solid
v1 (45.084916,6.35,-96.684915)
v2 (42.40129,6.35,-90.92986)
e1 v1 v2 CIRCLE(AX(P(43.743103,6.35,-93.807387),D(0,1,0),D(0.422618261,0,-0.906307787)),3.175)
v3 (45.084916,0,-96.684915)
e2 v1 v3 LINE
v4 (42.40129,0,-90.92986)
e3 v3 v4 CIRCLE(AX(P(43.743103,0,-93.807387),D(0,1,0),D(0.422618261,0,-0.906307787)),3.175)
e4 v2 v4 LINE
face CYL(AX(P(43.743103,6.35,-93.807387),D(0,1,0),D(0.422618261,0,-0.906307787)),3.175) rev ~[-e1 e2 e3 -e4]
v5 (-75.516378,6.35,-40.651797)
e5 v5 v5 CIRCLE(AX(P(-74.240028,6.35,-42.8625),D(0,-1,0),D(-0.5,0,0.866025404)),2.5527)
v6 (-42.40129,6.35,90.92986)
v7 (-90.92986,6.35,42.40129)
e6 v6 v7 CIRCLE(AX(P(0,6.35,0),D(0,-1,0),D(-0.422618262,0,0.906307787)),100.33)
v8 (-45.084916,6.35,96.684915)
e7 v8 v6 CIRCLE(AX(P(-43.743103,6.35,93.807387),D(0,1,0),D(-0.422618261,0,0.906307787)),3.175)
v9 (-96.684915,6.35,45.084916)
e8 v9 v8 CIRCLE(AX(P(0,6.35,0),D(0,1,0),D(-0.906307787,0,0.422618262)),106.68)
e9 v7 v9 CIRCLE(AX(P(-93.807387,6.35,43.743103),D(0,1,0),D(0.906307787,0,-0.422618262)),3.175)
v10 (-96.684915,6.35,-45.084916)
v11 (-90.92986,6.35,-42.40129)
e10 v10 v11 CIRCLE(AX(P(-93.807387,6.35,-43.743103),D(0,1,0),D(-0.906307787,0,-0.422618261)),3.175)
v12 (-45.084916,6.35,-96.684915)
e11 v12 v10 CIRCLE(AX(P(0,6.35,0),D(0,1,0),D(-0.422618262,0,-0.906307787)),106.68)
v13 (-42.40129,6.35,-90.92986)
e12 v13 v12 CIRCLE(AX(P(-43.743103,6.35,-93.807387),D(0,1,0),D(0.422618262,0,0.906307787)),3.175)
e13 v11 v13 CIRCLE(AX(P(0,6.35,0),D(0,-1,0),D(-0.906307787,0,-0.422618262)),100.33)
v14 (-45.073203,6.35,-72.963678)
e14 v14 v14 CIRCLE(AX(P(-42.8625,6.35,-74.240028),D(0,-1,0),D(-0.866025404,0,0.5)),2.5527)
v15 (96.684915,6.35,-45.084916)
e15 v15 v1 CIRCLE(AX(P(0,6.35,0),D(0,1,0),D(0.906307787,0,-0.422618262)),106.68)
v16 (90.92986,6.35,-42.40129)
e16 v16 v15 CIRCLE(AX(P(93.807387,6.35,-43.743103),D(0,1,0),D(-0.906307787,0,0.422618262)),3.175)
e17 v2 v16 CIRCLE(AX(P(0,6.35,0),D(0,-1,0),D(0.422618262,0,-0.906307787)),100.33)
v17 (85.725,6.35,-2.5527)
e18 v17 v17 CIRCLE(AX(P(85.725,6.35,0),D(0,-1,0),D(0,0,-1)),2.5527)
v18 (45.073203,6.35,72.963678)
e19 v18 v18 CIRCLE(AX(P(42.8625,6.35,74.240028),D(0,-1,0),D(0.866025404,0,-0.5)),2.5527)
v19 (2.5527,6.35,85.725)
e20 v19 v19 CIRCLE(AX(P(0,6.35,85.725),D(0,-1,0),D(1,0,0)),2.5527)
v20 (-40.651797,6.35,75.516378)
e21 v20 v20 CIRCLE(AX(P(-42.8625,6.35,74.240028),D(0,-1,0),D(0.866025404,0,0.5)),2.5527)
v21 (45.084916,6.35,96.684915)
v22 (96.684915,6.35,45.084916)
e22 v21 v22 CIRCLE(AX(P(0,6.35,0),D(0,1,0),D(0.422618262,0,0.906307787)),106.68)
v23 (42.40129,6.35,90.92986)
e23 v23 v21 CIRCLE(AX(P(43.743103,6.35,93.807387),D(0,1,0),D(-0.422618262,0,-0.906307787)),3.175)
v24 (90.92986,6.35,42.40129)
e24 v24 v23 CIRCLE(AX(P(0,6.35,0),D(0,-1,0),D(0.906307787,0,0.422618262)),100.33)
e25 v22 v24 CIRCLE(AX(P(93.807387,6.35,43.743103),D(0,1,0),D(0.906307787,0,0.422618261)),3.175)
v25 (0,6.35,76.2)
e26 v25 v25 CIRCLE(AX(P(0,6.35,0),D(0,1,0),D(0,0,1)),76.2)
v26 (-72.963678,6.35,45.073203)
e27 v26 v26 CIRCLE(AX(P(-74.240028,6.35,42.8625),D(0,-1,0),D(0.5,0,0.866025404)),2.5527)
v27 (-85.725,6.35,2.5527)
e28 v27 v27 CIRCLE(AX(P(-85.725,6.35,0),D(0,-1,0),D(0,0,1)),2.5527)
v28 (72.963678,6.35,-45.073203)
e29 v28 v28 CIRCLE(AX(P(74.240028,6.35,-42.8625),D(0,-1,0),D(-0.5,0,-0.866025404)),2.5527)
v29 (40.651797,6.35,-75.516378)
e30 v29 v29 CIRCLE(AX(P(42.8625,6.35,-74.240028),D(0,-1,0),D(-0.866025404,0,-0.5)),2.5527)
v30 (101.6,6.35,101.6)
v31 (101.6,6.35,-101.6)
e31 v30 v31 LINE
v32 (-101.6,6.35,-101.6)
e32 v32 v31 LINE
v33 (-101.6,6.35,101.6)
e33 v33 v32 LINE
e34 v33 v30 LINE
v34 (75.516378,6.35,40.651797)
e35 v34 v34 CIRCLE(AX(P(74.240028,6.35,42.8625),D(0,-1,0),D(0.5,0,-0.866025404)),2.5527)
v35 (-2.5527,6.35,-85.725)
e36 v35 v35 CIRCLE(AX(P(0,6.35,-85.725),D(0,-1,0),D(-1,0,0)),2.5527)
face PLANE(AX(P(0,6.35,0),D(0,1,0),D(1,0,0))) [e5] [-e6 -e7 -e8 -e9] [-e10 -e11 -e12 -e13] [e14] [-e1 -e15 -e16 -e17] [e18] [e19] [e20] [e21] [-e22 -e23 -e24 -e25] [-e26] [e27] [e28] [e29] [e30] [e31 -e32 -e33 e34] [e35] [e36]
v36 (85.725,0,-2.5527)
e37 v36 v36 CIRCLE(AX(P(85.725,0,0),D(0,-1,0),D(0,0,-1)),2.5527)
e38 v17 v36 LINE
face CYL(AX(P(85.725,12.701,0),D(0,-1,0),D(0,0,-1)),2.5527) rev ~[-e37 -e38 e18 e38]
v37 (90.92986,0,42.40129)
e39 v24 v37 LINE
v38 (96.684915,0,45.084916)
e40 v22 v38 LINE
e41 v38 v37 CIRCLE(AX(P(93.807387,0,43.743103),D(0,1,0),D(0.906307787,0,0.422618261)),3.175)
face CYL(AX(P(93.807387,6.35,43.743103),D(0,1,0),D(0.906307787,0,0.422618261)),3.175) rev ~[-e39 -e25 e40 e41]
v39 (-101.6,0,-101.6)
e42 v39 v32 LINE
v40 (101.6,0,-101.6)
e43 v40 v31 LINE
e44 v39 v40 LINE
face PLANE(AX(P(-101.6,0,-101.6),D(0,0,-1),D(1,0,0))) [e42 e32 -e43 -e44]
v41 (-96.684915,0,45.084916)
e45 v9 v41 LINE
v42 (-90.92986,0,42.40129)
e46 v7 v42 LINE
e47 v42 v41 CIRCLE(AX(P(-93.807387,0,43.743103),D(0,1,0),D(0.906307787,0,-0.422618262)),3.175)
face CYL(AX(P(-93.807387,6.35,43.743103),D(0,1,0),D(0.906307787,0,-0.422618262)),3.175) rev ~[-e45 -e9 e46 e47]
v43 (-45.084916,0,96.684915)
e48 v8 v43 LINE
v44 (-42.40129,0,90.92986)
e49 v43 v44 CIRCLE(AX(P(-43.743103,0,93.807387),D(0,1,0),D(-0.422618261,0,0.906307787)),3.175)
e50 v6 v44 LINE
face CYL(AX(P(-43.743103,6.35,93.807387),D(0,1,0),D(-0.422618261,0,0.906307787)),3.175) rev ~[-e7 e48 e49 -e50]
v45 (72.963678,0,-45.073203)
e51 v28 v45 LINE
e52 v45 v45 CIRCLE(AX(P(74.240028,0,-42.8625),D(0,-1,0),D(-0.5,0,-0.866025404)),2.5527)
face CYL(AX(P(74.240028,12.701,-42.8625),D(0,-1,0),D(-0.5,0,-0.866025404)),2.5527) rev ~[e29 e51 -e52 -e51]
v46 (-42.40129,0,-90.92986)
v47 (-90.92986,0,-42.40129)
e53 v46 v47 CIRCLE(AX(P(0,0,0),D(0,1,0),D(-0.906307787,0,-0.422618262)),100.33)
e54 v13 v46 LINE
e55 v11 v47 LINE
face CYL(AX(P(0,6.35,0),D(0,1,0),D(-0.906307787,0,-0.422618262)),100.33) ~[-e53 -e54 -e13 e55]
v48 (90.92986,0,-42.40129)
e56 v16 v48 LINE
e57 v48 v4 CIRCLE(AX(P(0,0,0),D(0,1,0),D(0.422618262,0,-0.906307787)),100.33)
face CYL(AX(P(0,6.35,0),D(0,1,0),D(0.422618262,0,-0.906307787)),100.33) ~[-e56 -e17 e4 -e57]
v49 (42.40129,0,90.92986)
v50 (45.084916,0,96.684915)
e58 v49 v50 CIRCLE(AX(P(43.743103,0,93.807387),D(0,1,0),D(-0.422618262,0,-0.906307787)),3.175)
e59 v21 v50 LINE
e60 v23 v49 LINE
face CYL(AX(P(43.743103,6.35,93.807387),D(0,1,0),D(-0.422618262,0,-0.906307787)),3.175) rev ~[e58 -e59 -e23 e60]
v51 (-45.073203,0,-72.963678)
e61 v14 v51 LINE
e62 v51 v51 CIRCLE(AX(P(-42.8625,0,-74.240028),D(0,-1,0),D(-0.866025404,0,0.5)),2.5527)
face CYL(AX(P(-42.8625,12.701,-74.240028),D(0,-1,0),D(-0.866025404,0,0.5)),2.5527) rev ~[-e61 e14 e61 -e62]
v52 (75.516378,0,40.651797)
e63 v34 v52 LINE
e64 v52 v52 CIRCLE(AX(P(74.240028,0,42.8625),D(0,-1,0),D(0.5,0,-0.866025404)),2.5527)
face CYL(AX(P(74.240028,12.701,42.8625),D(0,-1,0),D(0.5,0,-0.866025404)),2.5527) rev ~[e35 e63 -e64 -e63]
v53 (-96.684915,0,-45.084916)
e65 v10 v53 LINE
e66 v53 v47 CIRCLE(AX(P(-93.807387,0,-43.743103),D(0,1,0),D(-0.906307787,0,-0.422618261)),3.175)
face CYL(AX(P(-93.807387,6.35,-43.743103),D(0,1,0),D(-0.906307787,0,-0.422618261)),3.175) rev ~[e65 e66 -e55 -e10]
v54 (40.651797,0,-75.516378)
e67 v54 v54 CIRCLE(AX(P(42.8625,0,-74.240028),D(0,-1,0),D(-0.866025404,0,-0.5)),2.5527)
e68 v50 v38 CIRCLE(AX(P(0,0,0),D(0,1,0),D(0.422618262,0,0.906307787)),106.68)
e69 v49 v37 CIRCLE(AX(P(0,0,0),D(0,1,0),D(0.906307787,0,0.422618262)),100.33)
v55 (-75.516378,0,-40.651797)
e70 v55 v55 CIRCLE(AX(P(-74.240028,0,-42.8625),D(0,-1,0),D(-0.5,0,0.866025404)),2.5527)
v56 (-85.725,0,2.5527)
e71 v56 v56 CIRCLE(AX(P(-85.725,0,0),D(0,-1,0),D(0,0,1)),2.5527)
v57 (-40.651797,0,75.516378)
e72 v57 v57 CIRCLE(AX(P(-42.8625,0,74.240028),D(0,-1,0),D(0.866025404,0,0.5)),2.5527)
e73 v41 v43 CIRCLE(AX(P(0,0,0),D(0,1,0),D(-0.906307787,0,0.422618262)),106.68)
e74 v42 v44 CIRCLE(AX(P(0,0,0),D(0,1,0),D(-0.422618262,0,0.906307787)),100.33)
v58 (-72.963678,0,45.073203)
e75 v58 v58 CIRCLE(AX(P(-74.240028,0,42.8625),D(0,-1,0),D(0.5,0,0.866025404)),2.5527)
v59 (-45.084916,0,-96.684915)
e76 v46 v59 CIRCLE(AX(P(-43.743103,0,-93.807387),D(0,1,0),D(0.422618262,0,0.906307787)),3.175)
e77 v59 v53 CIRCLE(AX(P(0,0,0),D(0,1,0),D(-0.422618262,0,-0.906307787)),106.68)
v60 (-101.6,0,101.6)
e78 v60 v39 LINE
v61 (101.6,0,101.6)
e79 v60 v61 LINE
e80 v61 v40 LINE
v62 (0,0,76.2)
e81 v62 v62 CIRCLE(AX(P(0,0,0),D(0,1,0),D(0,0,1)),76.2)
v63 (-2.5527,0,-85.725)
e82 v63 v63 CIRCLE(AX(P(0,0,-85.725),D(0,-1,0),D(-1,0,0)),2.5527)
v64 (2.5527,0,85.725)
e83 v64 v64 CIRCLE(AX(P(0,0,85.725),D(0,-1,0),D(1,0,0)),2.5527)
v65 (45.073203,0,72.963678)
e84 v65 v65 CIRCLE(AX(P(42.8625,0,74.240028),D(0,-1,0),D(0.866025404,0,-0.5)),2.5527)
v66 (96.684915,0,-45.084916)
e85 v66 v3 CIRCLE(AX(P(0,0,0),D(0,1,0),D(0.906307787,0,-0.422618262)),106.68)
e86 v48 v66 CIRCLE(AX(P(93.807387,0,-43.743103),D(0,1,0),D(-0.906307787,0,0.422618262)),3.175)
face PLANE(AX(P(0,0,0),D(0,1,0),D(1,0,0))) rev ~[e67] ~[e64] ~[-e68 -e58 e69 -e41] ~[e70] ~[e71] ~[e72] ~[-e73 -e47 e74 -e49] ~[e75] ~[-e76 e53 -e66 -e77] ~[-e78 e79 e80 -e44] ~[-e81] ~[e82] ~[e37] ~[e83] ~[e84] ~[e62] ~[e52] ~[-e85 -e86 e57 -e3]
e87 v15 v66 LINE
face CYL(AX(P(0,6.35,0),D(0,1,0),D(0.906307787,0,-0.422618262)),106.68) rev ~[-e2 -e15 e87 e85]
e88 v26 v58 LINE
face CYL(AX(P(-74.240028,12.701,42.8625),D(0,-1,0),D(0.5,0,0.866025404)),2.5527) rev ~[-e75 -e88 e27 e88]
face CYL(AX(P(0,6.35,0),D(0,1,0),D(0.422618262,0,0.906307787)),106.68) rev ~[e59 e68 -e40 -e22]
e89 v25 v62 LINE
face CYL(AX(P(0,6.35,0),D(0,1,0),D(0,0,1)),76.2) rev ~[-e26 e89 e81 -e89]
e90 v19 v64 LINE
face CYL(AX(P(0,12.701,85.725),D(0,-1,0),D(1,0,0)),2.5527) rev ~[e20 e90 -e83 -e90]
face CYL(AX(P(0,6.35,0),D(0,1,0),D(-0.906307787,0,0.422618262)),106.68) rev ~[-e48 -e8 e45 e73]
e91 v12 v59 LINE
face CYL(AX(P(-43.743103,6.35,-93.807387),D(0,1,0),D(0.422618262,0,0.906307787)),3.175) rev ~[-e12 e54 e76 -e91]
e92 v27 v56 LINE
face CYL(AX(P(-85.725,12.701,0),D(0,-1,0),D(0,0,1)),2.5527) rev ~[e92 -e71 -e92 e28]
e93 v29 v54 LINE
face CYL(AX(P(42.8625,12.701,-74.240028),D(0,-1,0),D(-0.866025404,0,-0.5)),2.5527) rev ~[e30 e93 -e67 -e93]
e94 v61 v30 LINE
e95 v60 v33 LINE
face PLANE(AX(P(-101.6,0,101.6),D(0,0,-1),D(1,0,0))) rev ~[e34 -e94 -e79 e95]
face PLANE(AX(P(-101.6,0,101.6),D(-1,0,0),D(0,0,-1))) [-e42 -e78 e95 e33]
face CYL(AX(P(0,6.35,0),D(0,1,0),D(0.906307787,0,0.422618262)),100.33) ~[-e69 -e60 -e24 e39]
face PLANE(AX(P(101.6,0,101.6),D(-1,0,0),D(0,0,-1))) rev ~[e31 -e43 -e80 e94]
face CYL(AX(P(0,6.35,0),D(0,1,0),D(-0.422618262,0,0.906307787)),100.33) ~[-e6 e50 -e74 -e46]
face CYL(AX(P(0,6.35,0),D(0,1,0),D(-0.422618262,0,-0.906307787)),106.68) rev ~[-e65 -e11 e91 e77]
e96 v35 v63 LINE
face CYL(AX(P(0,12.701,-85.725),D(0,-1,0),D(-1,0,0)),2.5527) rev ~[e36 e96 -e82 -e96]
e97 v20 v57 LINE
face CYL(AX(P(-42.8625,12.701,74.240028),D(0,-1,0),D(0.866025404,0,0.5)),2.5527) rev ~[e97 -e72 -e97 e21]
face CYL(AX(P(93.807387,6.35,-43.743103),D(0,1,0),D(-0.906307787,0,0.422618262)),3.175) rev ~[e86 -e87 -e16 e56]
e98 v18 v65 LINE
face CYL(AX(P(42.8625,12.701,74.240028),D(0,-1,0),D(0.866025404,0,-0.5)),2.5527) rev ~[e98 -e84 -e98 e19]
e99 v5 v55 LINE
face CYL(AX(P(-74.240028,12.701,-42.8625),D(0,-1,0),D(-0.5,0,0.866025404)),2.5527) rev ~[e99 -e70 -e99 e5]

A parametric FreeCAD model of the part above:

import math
import FreeCAD as App
import Part
import Sketcher
Q = App.Units.Quantity

doc = App.newDocument("Part")
params = doc.addObject("Spreadsheet::Sheet", "Params")
for row, (alias, value) in enumerate([
    ("sketch1_width", "8 in"),
    ("pad1_length", "0.25 in"),
    ("sketch2_diameter", "6 in"),
    ("sketch3_diameter", "0.201 in"),
    ("hole_diameter", "0.201 in"),
    ("hole_depth", "6.351 mm"),
    ("sketch4_radius", "4.2 in"),
    ("sketch4_radius2", "3.95 in"),
    ("sketch5_radius", "4.2 in"),
    ("sketch5_radius2", "3.95 in"),
    ("sketch6_radius", "4.2 in"),
    ("sketch6_radius2", "3.95 in"),
    ("sketch7_radius", "4.2 in"),
    ("sketch7_radius2", "3.95 in"),
], start=1):
    params.set(f"A{row}", alias)
    params.set(f"B{row}", "=" + value)
    params.setAlias(f"B{row}", alias)

body = doc.addObject("PartDesign::Body", "Body")

# Sketch on XZ plane
sketch1 = body.newObject("Sketcher::SketchObject", "Sketch")
sketch1.AttachmentSupport = (doc.getObject("XZ_Plane"), [""])
sketch1.MapMode = "FlatFace"
sketch1.addGeometry([
    Part.LineSegment(App.Vector(-102, -102, 0), App.Vector(-102, 102, 0)),
    Part.LineSegment(App.Vector(-102, 102, 0), App.Vector(102, 102, 0)),
    Part.LineSegment(App.Vector(102, 102, 0), App.Vector(102, -102, 0)),
    Part.LineSegment(App.Vector(102, -102, 0), App.Vector(-102, -102, 0)),
], False)
sketch1.addConstraint([
    Sketcher.Constraint("Coincident", 0, 2, 1, 1),
    Sketcher.Constraint("Coincident", 1, 2, 2, 1),
    Sketcher.Constraint("Coincident", 2, 2, 3, 1),
    Sketcher.Constraint("Coincident", 3, 2, 0, 1),
    Sketcher.Constraint("Vertical", 0),
    Sketcher.Constraint("Horizontal", 1),
    Sketcher.Constraint("Vertical", 2),
    Sketcher.Constraint("Horizontal", 3),
    Sketcher.Constraint("Symmetric", 0, 2, 2, 2, -1, 1),
    Sketcher.Constraint("Equal", 3, 0),
    Sketcher.Constraint("DistanceX", 1, 1, 1, 2, Q("8 in")),
])
sketch1.setExpression("Constraints[10]", "Params.sketch1_width")
pad1 = body.newObject("PartDesign::Pad", "Pad")
pad1.Profile = sketch1
pad1.setExpression("Length", "Params.pad1_length")
pad1.Reversed = True

# Sketch on XZ plane
sketch2 = body.newObject("Sketcher::SketchObject", "Sketch001")
sketch2.AttachmentSupport = (doc.getObject("XZ_Plane"), [""])
sketch2.MapMode = "FlatFace"
sketch2.AttachmentOffset = App.Placement(App.Vector(0, 0, -0.25 * 25.4), App.Rotation())
sketch2.addGeometry(Part.Circle(App.Vector(0, 0, 0), App.Vector(0, 0, 1), 76), False)
sketch2.addConstraint([
    Sketcher.Constraint("Coincident", 0, 3, -1, 1),
    Sketcher.Constraint("Diameter", 0, Q("6 in")),
])
sketch2.setExpression("Constraints[1]", "Params.sketch2_diameter")
pocket1 = body.newObject("PartDesign::Pocket", "Pocket")
pocket1.Profile = sketch2
pocket1.Type = "UpToFirst"
pocket1.Reversed = True

# Sketch on XZ plane
sketch3 = body.newObject("Sketcher::SketchObject", "Sketch002")
sketch3.AttachmentSupport = (doc.getObject("XZ_Plane"), [""])
sketch3.MapMode = "FlatFace"
sketch3.AttachmentOffset = App.Placement(App.Vector(0, 0, -0.25 * 25.4), App.Rotation())
sketch3.addGeometry(Part.Circle(App.Vector(0, -85.7, 0), App.Vector(0, 0, 1), 2.6), False)
sketch3.addConstraint([
    Sketcher.Constraint("PointOnObject", 0, 3, -2),
    Sketcher.Constraint("Diameter", 0, Q("0.201 in")),
    Sketcher.Constraint("DistanceY", 0, 3, -1, 1, Q("3.375 in")),
])
sketch3.setExpression("Constraints[1]", "Params.sketch3_diameter")
doc.recompute()
hole = body.newObject("PartDesign::Hole", "Hole")
hole.Profile = sketch3
hole.ThreadType = "None"
hole.setExpression("Diameter", "Params.hole_diameter")
hole.DepthType = "Dimension"
hole.setExpression("Depth", "Params.hole_depth")
hole.DrillPoint = "Flat"
hole.Reversed = True
doc.recompute()

polarpattern = body.newObject("PartDesign::PolarPattern", "PolarPattern")
polarpattern.Originals = [hole]
polarpattern.Axis = (doc.getObject("Y_Axis"), [""])
polarpattern.Angle = 360
polarpattern.Occurrences = 12
body.Tip = polarpattern

# Sketch on XZ plane
sketch4 = body.newObject("Sketcher::SketchObject", "Sketch003")
sketch4.AttachmentSupport = (doc.getObject("XZ_Plane"), [""])
sketch4.MapMode = "FlatFace"
sketch4.AttachmentOffset = App.Placement(App.Vector(0, 0, -0.25 * 25.4), App.Rotation())
sketch4.addGeometry([
    Part.ArcOfCircle(Part.Circle(App.Vector(0, 0, 0), App.Vector(0, 0, 1), 106.7), math.radians(-155), math.radians(-115)),
    Part.ArcOfCircle(Part.Circle(App.Vector(-93.8, -43.7, 0), App.Vector(0, 0, 1), 3.2), math.radians(25), math.radians(205)),
    Part.ArcOfCircle(Part.Circle(App.Vector(0, 0, 0), App.Vector(0, 0, 1), 100.3), math.radians(-155), math.radians(-115)),
    Part.ArcOfCircle(Part.Circle(App.Vector(-43.7, -93.8, 0), App.Vector(0, 0, 1), 3.2), math.radians(-115), math.radians(65)),
], False)
sketch4.addConstraint([
    Sketcher.Constraint("Tangent", 0, 1, 1, 2),
    Sketcher.Constraint("Tangent", 1, 1, 2, 1),
    Sketcher.Constraint("Tangent", 2, 2, 3, 2),
    Sketcher.Constraint("Tangent", 3, 1, 0, 2),
    Sketcher.Constraint("Coincident", 0, 3, -1, 1),
    Sketcher.Constraint("Coincident", 2, 3, -1, 1),
    Sketcher.Constraint("Radius", 0, Q("4.2 in")),
    Sketcher.Constraint("Radius", 2, Q("3.95 in")),
    Sketcher.Constraint("DistanceX", 0, 1, 3, 1, 51.599999),
    Sketcher.Constraint("DistanceY", 3, 1, 0, 1, 51.599999),
])
sketch4.setExpression("Constraints[6]", "Params.sketch4_radius")
sketch4.setExpression("Constraints[7]", "Params.sketch4_radius2")
pocket2 = body.newObject("PartDesign::Pocket", "Pocket001")
pocket2.Profile = sketch4
pocket2.Type = "UpToFirst"
pocket2.Reversed = True

# Sketch on XZ plane
sketch5 = body.newObject("Sketcher::SketchObject", "Sketch004")
sketch5.AttachmentSupport = (doc.getObject("XZ_Plane"), [""])
sketch5.MapMode = "FlatFace"
sketch5.AttachmentOffset = App.Placement(App.Vector(0, 0, -0.25 * 25.4), App.Rotation())
sketch5.addGeometry([
    Part.ArcOfCircle(Part.Circle(App.Vector(0, 0, 0), App.Vector(0, 0, 1), 106.7), math.radians(-65), math.radians(-25)),
    Part.ArcOfCircle(Part.Circle(App.Vector(43.7, -93.8, 0), App.Vector(0, 0, 1), 3.2), math.radians(115), math.radians(295)),
    Part.ArcOfCircle(Part.Circle(App.Vector(0, 0, 0), App.Vector(0, 0, 1), 100.3), math.radians(-65), math.radians(-25)),
    Part.ArcOfCircle(Part.Circle(App.Vector(93.8, -43.7, 0), App.Vector(0, 0, 1), 3.2), math.radians(-25), math.radians(155)),
], False)
sketch5.addConstraint([
    Sketcher.Constraint("Tangent", 0, 1, 1, 2),
    Sketcher.Constraint("Tangent", 1, 1, 2, 1),
    Sketcher.Constraint("Tangent", 2, 2, 3, 2),
    Sketcher.Constraint("Tangent", 3, 1, 0, 2),
    Sketcher.Constraint("Coincident", 0, 3, -1, 1),
    Sketcher.Constraint("Coincident", 2, 3, -1, 1),
    Sketcher.Constraint("Radius", 0, Q("4.2 in")),
    Sketcher.Constraint("Radius", 2, Q("3.95 in")),
    Sketcher.Constraint("DistanceX", 0, 1, 3, 1, 51.599999),
    Sketcher.Constraint("DistanceY", 0, 1, 3, 1, 51.599999),
])
sketch5.setExpression("Constraints[6]", "Params.sketch5_radius")
sketch5.setExpression("Constraints[7]", "Params.sketch5_radius2")
pocket3 = body.newObject("PartDesign::Pocket", "Pocket002")
pocket3.Profile = sketch5
pocket3.Type = "UpToFirst"
pocket3.Reversed = True

# Sketch on XZ plane
sketch6 = body.newObject("Sketcher::SketchObject", "Sketch005")
sketch6.AttachmentSupport = (doc.getObject("XZ_Plane"), [""])
sketch6.MapMode = "FlatFace"
sketch6.AttachmentOffset = App.Placement(App.Vector(0, 0, -0.25 * 25.4), App.Rotation())
sketch6.addGeometry([
    Part.ArcOfCircle(Part.Circle(App.Vector(0, 0, 0), App.Vector(0, 0, 1), 106.7), math.radians(115), math.radians(155)),
    Part.ArcOfCircle(Part.Circle(App.Vector(-43.7, 93.8, 0), App.Vector(0, 0, 1), 3.2), math.radians(-65), math.radians(115)),
    Part.ArcOfCircle(Part.Circle(App.Vector(0, 0, 0), App.Vector(0, 0, 1), 100.3), math.radians(115), math.radians(155)),
    Part.ArcOfCircle(Part.Circle(App.Vector(-93.8, 43.7, 0), App.Vector(0, 0, 1), 3.2), math.radians(155), math.radians(335)),
], False)
sketch6.addConstraint([
    Sketcher.Constraint("Tangent", 0, 1, 1, 2),
    Sketcher.Constraint("Tangent", 1, 1, 2, 1),
    Sketcher.Constraint("Tangent", 2, 2, 3, 2),
    Sketcher.Constraint("Tangent", 3, 1, 0, 2),
    Sketcher.Constraint("Coincident", 0, 3, -1, 1),
    Sketcher.Constraint("Coincident", 2, 3, -1, 1),
    Sketcher.Constraint("Radius", 0, Q("4.2 in")),
    Sketcher.Constraint("Radius", 2, Q("3.95 in")),
    Sketcher.Constraint("DistanceX", 3, 1, 0, 1, 51.599999),
    Sketcher.Constraint("DistanceY", 3, 1, 0, 1, 51.599999),
])
sketch6.setExpression("Constraints[6]", "Params.sketch6_radius")
sketch6.setExpression("Constraints[7]", "Params.sketch6_radius2")
pocket4 = body.newObject("PartDesign::Pocket", "Pocket003")
pocket4.Profile = sketch6
pocket4.Type = "UpToFirst"
pocket4.Reversed = True

# Sketch on XZ plane
sketch7 = body.newObject("Sketcher::SketchObject", "Sketch006")
sketch7.AttachmentSupport = (doc.getObject("XZ_Plane"), [""])
sketch7.MapMode = "FlatFace"
sketch7.AttachmentOffset = App.Placement(App.Vector(0, 0, -0.25 * 25.4), App.Rotation())
sketch7.addGeometry([
    Part.ArcOfCircle(Part.Circle(App.Vector(0, 0, 0), App.Vector(0, 0, 1), 106.7), math.radians(25), math.radians(65)),
    Part.ArcOfCircle(Part.Circle(App.Vector(93.8, 43.7, 0), App.Vector(0, 0, 1), 3.2), math.radians(-155), math.radians(25)),
    Part.ArcOfCircle(Part.Circle(App.Vector(0, 0, 0), App.Vector(0, 0, 1), 100.3), math.radians(25), math.radians(65)),
    Part.ArcOfCircle(Part.Circle(App.Vector(43.7, 93.8, 0), App.Vector(0, 0, 1), 3.2), math.radians(65), math.radians(245)),
], False)
sketch7.addConstraint([
    Sketcher.Constraint("Tangent", 0, 1, 1, 2),
    Sketcher.Constraint("Tangent", 1, 1, 2, 1),
    Sketcher.Constraint("Tangent", 2, 2, 3, 2),
    Sketcher.Constraint("Tangent", 3, 1, 0, 2),
    Sketcher.Constraint("Coincident", 0, 3, -1, 1),
    Sketcher.Constraint("Coincident", 2, 3, -1, 1),
    Sketcher.Constraint("Radius", 0, Q("4.2 in")),
    Sketcher.Constraint("Radius", 2, Q("3.95 in")),
    Sketcher.Constraint("DistanceX", 3, 1, 0, 1, 51.599999),
    Sketcher.Constraint("DistanceY", 0, 1, 3, 1, 51.599999),
])
sketch7.setExpression("Constraints[6]", "Params.sketch7_radius")
sketch7.setExpression("Constraints[7]", "Params.sketch7_radius2")
pocket5 = body.newObject("PartDesign::Pocket", "Pocket004")
pocket5.Profile = sketch7
pocket5.Type = "UpToFirst"
pocket5.Reversed = True

doc.recompute()
